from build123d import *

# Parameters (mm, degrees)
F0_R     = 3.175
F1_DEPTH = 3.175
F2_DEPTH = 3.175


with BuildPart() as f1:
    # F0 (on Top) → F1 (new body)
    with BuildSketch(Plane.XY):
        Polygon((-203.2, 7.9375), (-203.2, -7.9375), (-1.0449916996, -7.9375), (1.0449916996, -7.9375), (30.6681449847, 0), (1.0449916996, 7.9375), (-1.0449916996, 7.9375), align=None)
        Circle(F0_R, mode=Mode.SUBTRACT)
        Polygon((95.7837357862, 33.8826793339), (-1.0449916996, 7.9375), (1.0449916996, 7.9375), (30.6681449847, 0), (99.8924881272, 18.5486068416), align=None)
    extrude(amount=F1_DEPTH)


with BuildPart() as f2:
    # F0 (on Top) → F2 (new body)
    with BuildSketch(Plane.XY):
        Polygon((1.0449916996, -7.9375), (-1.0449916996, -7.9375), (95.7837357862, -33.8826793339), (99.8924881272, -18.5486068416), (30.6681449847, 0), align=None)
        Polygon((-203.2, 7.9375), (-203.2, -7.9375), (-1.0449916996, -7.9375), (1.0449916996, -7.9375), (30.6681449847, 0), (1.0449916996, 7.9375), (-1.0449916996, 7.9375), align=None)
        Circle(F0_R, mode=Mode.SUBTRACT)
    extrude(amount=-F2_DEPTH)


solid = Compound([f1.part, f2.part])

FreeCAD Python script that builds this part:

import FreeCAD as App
import Part
import Sketcher
Q = App.Units.Quantity

doc = App.newDocument("Part")
params = doc.addObject("Spreadsheet::Sheet", "Params")
for row, (alias, value) in enumerate([
    ("sketch1_diameter", "0.25 in"),
    ("sketch1_height", "0.625 in"),
    ("sketch1_length", "0.625 in"),
    ("pad1_length", "0.125 in"),
    ("sketch2_diameter", "0.25 in"),
    ("sketch2_height", "0.625 in"),
    ("sketch2_length", "0.625 in"),
    ("pad2_length", "0.125 in"),
], start=1):
    params.set(f"A{row}", alias)
    params.set(f"B{row}", "=" + value)
    params.setAlias(f"B{row}", alias)

body = doc.addObject("PartDesign::Body", "Body")

sketch1 = body.newObject("Sketcher::SketchObject", "Sketch")
sketch1.AttachmentSupport = (doc.getObject("XY_Plane"), [""])
sketch1.MapMode = "FlatFace"
sketch1.addGeometry([
    Part.LineSegment(App.Vector(-203.2, 7.9, 0), App.Vector(-203.2, -7.9, 0)),
    Part.LineSegment(App.Vector(-203.2, -7.9, 0), App.Vector(1, -7.9, 0)),
    Part.LineSegment(App.Vector(1, -7.9, 0), App.Vector(99.9, 18.5, 0)),
    Part.LineSegment(App.Vector(99.9, 18.5, 0), App.Vector(95.8, 33.9, 0)),
    Part.LineSegment(App.Vector(95.8, 33.9, 0), App.Vector(-1, 7.9, 0)),
    Part.LineSegment(App.Vector(-1, 7.9, 0), App.Vector(-203.2, 7.9, 0)),
    Part.Circle(App.Vector(0, 0, 0), App.Vector(0, 0, 1), 3.2),
], False)
sketch1.addConstraint([
    Sketcher.Constraint("Coincident", 0, 2, 1, 1),
    Sketcher.Constraint("Coincident", 1, 2, 2, 1),
    Sketcher.Constraint("Coincident", 2, 2, 3, 1),
    Sketcher.Constraint("Coincident", 3, 2, 4, 1),
    Sketcher.Constraint("Coincident", 4, 2, 5, 1),
    Sketcher.Constraint("Coincident", 5, 2, 0, 1),
    Sketcher.Constraint("Vertical", 0),
    Sketcher.Constraint("Horizontal", 1),
    Sketcher.Constraint("Horizontal", 5),
    Sketcher.Constraint("Coincident", 6, 3, -1, 1),
    Sketcher.Constraint("Symmetric", 1, 2, 4, 2, -1, 1),
    Sketcher.Constraint("Perpendicular", 2, 3),
    Sketcher.Constraint("Perpendicular", 3, 4),
    Sketcher.Constraint("Diameter", 6, Q("0.25 in")),
    Sketcher.Constraint("DistanceX", 0, 2, -1, 1, Q("8 in")),
    Sketcher.Constraint("Angle", 2, Q("15 deg")),
    Sketcher.Constraint("DistanceY", 0, 2, 0, 1, Q("0.625 in")),
    Sketcher.Constraint("Distance", 3, Q("0.625 in")),
    Sketcher.Constraint("Distance", 2, 102.334459),
])
sketch1.setExpression("Constraints[13]", "Params.sketch1_diameter")
sketch1.setExpression("Constraints[16]", "Params.sketch1_height")
sketch1.setExpression("Constraints[17]", "Params.sketch1_length")
pad1 = body.newObject("PartDesign::Pad", "Pad")
pad1.Profile = sketch1
pad1.setExpression("Length", "Params.pad1_length")
body2 = doc.addObject("PartDesign::Body", "Body001")

sketch2 = body2.newObject("Sketcher::SketchObject", "Sketch001")
sketch2.AttachmentSupport = (doc.getObject("XY_Plane001"), [""])
sketch2.MapMode = "FlatFace"
sketch2.addGeometry([
    Part.LineSegment(App.Vector(-1, -7.9, 0), App.Vector(95.8, -33.9, 0)),
    Part.LineSegment(App.Vector(95.8, -33.9, 0), App.Vector(99.9, -18.5, 0)),
    Part.LineSegment(App.Vector(99.9, -18.5, 0), App.Vector(1, 7.9, 0)),
    Part.LineSegment(App.Vector(1, 7.9, 0), App.Vector(-203.2, 7.9, 0)),
    Part.LineSegment(App.Vector(-203.2, 7.9, 0), App.Vector(-203.2, -7.9, 0)),
    Part.LineSegment(App.Vector(-203.2, -7.9, 0), App.Vector(-1, -7.9, 0)),
    Part.Circle(App.Vector(0, 0, 0), App.Vector(0, 0, 1), 3.2),
], False)
sketch2.addConstraint([
    Sketcher.Constraint("Coincident", 0, 2, 1, 1),
    Sketcher.Constraint("Coincident", 1, 2, 2, 1),
    Sketcher.Constraint("Coincident", 2, 2, 3, 1),
    Sketcher.Constraint("Coincident", 3, 2, 4, 1),
    Sketcher.Constraint("Coincident", 4, 2, 5, 1),
    Sketcher.Constraint("Coincident", 5, 2, 0, 1),
    Sketcher.Constraint("Horizontal", 3),
    Sketcher.Constraint("Vertical", 4),
    Sketcher.Constraint("Horizontal", 5),
    Sketcher.Constraint("Coincident", 6, 3, -1, 1),
    Sketcher.Constraint("Symmetric", 2, 2, 5, 2, -1, 1),
    Sketcher.Constraint("Perpendicular", 0, 1),
    Sketcher.Constraint("Perpendicular", 1, 2),
    Sketcher.Constraint("Diameter", 6, Q("0.25 in")),
    Sketcher.Constraint("DistanceX", 3, 2, -1, 1, Q("8 in")),
    Sketcher.Constraint("Angle", 0, Q("-15 deg")),
    Sketcher.Constraint("DistanceY", 4, 2, 4, 1, Q("0.625 in")),
    Sketcher.Constraint("Distance", 1, Q("0.625 in")),
    Sketcher.Constraint("Distance", 2, 102.334459),
])
sketch2.setExpression("Constraints[13]", "Params.sketch2_diameter")
sketch2.setExpression("Constraints[16]", "Params.sketch2_height")
sketch2.setExpression("Constraints[17]", "Params.sketch2_length")
pad2 = body2.newObject("PartDesign::Pad", "Pad001")
pad2.Profile = sketch2
pad2.setExpression("Length", "Params.pad2_length")
pad2.Reversed = True

doc.recompute()
